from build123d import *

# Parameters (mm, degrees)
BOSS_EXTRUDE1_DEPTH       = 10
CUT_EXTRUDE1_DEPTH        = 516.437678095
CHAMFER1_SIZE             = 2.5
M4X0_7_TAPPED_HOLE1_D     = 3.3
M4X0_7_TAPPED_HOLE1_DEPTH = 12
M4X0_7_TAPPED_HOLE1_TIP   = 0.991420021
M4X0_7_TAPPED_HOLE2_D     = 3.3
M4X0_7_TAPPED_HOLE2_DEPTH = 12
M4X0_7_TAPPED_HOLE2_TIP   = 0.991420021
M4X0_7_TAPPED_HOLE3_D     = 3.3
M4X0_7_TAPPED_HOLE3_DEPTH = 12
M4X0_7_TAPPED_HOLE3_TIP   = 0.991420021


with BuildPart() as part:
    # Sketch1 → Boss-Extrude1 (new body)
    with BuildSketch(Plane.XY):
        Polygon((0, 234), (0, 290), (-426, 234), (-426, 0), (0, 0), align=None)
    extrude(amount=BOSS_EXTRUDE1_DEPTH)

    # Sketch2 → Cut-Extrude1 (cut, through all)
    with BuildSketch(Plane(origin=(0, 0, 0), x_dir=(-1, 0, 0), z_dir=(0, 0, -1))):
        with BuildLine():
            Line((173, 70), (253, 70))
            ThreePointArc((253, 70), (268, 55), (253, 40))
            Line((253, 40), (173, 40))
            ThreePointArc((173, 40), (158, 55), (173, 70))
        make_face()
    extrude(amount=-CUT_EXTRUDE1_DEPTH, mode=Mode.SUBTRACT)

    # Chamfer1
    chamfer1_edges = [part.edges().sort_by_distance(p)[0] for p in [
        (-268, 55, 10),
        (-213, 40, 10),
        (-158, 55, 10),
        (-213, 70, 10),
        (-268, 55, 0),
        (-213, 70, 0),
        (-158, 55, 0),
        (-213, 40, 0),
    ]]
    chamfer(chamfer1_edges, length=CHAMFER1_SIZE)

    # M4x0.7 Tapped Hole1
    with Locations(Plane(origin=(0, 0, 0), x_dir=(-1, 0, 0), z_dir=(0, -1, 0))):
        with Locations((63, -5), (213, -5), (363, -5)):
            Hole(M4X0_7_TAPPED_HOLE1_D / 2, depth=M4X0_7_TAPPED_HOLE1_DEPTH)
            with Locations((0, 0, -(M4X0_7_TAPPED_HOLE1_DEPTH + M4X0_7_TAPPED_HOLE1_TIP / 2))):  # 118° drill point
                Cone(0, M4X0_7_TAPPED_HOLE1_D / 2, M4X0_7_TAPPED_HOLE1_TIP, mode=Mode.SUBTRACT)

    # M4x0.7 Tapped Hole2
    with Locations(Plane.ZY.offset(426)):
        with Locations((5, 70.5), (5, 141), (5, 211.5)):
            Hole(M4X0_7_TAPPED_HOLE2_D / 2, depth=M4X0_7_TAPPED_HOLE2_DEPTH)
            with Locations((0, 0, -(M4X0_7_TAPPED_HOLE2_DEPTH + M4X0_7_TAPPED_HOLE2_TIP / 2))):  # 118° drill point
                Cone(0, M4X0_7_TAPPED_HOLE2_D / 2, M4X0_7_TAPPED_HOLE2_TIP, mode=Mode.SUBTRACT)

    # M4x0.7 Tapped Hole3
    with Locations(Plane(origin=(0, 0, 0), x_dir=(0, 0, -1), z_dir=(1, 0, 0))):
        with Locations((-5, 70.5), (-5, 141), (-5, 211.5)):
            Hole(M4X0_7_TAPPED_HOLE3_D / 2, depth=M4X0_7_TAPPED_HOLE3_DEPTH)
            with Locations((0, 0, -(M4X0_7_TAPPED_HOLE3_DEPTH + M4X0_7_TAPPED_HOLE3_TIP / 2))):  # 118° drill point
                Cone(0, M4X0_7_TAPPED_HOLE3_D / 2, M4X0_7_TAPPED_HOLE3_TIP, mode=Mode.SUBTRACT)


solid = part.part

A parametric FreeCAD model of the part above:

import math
import FreeCAD as App
import Part
import Sketcher


def edges_at(feature, points):
    """Names of the edges that pass closest to the given points."""
    edges = feature.Shape.Edges
    near = lambda p: min(range(len(edges)), key=lambda i: edges[i].distToShape(Part.Vertex(*p))[0])
    return sorted({f"Edge{near(p) + 1}" for p in points})

doc = App.newDocument("Part")
body = doc.addObject("PartDesign::Body", "Body")

sketch1 = doc.addObject("Sketcher::SketchObject", "Sketch")
body.addObject(sketch1)
sketch1.AttachmentSupport = (doc.XY_Plane, [""])
sketch1.MapMode = "FlatFace"
sketch1.addGeometry([
    Part.LineSegment(App.Vector(0, 290, 0), App.Vector(-426, 234, 0)),
    Part.LineSegment(App.Vector(-426, 234, 0), App.Vector(-426, 0, 0)),
    Part.LineSegment(App.Vector(-426, 0, 0), App.Vector(0, 0, 0)),
    Part.LineSegment(App.Vector(0, 0, 0), App.Vector(0, 290, 0)),
], False)
sketch1.addConstraint([
    Sketcher.Constraint("Coincident", 0, 2, 1, 1),
    Sketcher.Constraint("Coincident", 1, 2, 2, 1),
    Sketcher.Constraint("Coincident", 2, 2, 3, 1),
    Sketcher.Constraint("Coincident", 3, 2, 0, 1),
    Sketcher.Constraint("Vertical", 1),
    Sketcher.Constraint("Horizontal", 2),
    Sketcher.Constraint("Vertical", 3),
    Sketcher.Constraint("Coincident", 2, 2, -1, 1),
    Sketcher.Constraint("DistanceX", 2, 1, 2, 2, 426.0),
    Sketcher.Constraint("DistanceY", 1, 2, 1, 1, 234.0),
    Sketcher.Constraint("DistanceY", 3, 1, 3, 2, 290.0),
])
pad1 = doc.addObject("PartDesign::Pad", "Pad")
body.addObject(pad1)
pad1.Profile = sketch1
pad1.Length = 10

sketch2 = doc.addObject("Sketcher::SketchObject", "Sketch001")
body.addObject(sketch2)
sketch2.AttachmentSupport = (doc.XY_Plane, [""])
sketch2.MapMode = "FlatFace"
sketch2.addGeometry([
    Part.LineSegment(App.Vector(-253, 70, 0), App.Vector(-173, 70, 0)),
    Part.ArcOfCircle(Part.Circle(App.Vector(-173, 55, 0), App.Vector(0, 0, 1), 15), math.radians(-90), math.radians(90)),
    Part.LineSegment(App.Vector(-173, 40, 0), App.Vector(-253, 40, 0)),
    Part.ArcOfCircle(Part.Circle(App.Vector(-253, 55, 0), App.Vector(0, 0, 1), 15), math.radians(90), math.radians(270)),
], False)
sketch2.addConstraint([
    Sketcher.Constraint("Tangent", 0, 2, 1, 2),
    Sketcher.Constraint("Tangent", 1, 1, 2, 1),
    Sketcher.Constraint("Tangent", 2, 2, 3, 2),
    Sketcher.Constraint("Tangent", 3, 1, 0, 1),
    Sketcher.Constraint("Horizontal", 0),
    Sketcher.Constraint("Horizontal", 2),
    Sketcher.Constraint("Radius", 1, 15.0),
    Sketcher.Constraint("DistanceX", 0, 1, 0, 2, 80.0),
    Sketcher.Constraint("DistanceX", 1, 3, -1, 1, 173.0),
    Sketcher.Constraint("DistanceY", -1, 1, 1, 3, 55.0),
])
pocket1 = doc.addObject("PartDesign::Pocket", "Pocket")
body.addObject(pocket1)
pocket1.Profile = sketch2
pocket1.Type = "ThroughAll"
pocket1.Reversed = True
doc.recompute()

chamfer = doc.addObject("PartDesign::Chamfer", "Chamfer")
body.addObject(chamfer)
chamfer.Base = (pocket1, edges_at(pocket1, [
    (-268, 55, 10),
    (-213, 40, 10),
    (-158, 55, 10),
    (-213, 70, 10),
    (-268, 55, 0),
    (-213, 70, 0),
    (-158, 55, 0),
    (-213, 40, 0),
]))
chamfer.Size = 2.5

sketch3 = doc.addObject("Sketcher::SketchObject", "Sketch002")
body.addObject(sketch3)
sketch3.AttachmentSupport = (doc.XZ_Plane, [""])
sketch3.MapMode = "FlatFace"
sketch3.addGeometry([
    Part.Circle(App.Vector(-63, 5, 0), App.Vector(0, 0, 1), 1.6),
    Part.Circle(App.Vector(-213, 5, 0), App.Vector(0, 0, 1), 1.6),
    Part.Circle(App.Vector(-363, 5, 0), App.Vector(0, 0, 1), 1.6),
], False)
sketch3.addConstraint([
    Sketcher.Constraint("Equal", 0, 1),
    Sketcher.Constraint("Equal", 1, 2),
    Sketcher.Constraint("Horizontal", 0, 3, 1, 3),
    Sketcher.Constraint("Horizontal", 1, 3, 2, 3),
    Sketcher.Constraint("Diameter", 0, 3.3),
    Sketcher.Constraint("DistanceX", 0, 3, -1, 1, 63.0),
    Sketcher.Constraint("DistanceY", -1, 1, 0, 3, 5.0),
    Sketcher.Constraint("DistanceX", 1, 3, -1, 1, 213.0),
    Sketcher.Constraint("DistanceX", 2, 3, -1, 1, 363.0),
])
doc.recompute()
hole = doc.addObject("PartDesign::Hole", "Hole")
body.addObject(hole)
hole.Profile = sketch3
hole.ThreadType = "None"
hole.Diameter = 3.3
hole.DepthType = "Dimension"
hole.Depth = 12
hole.DrillPoint = "Angled"
hole.DrillPointAngle = 118

sketch4 = doc.addObject("Sketcher::SketchObject", "Sketch003")
body.addObject(sketch4)
sketch4.AttachmentSupport = (doc.YZ_Plane, [""])
sketch4.MapMode = "FlatFace"
sketch4.AttachmentOffset = App.Placement(App.Vector(0, 0, -426), App.Rotation())
sketch4.addGeometry([
    Part.Circle(App.Vector(70.5, 5, 0), App.Vector(0, 0, 1), 1.6),
    Part.Circle(App.Vector(141, 5, 0), App.Vector(0, 0, 1), 1.6),
    Part.Circle(App.Vector(211.5, 5, 0), App.Vector(0, 0, 1), 1.6),
], False)
sketch4.addConstraint([
    Sketcher.Constraint("Equal", 0, 1),
    Sketcher.Constraint("Equal", 1, 2),
    Sketcher.Constraint("Horizontal", 0, 3, 1, 3),
    Sketcher.Constraint("Horizontal", 1, 3, 2, 3),
    Sketcher.Constraint("Diameter", 0, 3.3),
    Sketcher.Constraint("DistanceY", -1, 1, 0, 3, 5.0),
    Sketcher.Constraint("DistanceX", -1, 1, 1, 3, 141.0),
    Sketcher.Constraint("DistanceX", 0, 3, 2, 3, 141.0),
    Sketcher.Constraint("DistanceX", -1, 1, 0, 3, 70.5),
])
doc.recompute()
hole2 = doc.addObject("PartDesign::Hole", "Hole001")
body.addObject(hole2)
hole2.Profile = sketch4
hole2.ThreadType = "None"
hole2.Diameter = 3.3
hole2.DepthType = "Dimension"
hole2.Depth = 12
hole2.DrillPoint = "Angled"
hole2.DrillPointAngle = 118
hole2.Reversed = True

sketch5 = doc.addObject("Sketcher::SketchObject", "Sketch004")
body.addObject(sketch5)
sketch5.AttachmentSupport = (doc.YZ_Plane, [""])
sketch5.MapMode = "FlatFace"
sketch5.addGeometry([
    Part.Circle(App.Vector(70.5, 5, 0), App.Vector(0, 0, 1), 1.6),
    Part.Circle(App.Vector(141, 5, 0), App.Vector(0, 0, 1), 1.6),
    Part.Circle(App.Vector(211.5, 5, 0), App.Vector(0, 0, 1), 1.6),
], False)
sketch5.addConstraint([
    Sketcher.Constraint("Equal", 0, 1),
    Sketcher.Constraint("Equal", 1, 2),
    Sketcher.Constraint("Horizontal", 0, 3, 1, 3),
    Sketcher.Constraint("Horizontal", 1, 3, 2, 3),
    Sketcher.Constraint("Diameter", 0, 3.3),
    Sketcher.Constraint("DistanceY", -1, 1, 0, 3, 5.0),
    Sketcher.Constraint("DistanceX", -1, 1, 1, 3, 141.0),
    Sketcher.Constraint("DistanceX", 0, 3, 2, 3, 141.0),
    Sketcher.Constraint("DistanceX", -1, 1, 0, 3, 70.5),
])
doc.recompute()
hole3 = doc.addObject("PartDesign::Hole", "Hole002")
body.addObject(hole3)
hole3.Profile = sketch5
hole3.ThreadType = "None"
hole3.Diameter = 3.3
hole3.DepthType = "Dimension"
hole3.Depth = 12
hole3.DrillPoint = "Angled"
hole3.DrillPointAngle = 118

doc.recompute()
